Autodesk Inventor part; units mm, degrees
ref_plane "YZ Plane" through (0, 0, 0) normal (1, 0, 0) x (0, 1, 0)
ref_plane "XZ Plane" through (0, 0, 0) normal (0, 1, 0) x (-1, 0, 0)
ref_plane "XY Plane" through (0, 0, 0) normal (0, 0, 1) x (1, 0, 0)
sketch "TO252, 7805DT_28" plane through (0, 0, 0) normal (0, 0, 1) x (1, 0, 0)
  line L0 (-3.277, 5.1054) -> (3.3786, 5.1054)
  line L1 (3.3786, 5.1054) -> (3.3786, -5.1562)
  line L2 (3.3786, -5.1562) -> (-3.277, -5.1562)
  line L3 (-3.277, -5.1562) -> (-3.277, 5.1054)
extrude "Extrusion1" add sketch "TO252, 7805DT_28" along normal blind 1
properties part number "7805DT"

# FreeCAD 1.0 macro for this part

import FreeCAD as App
import Part
import Sketcher
from FreeCAD import Vector
Q = App.Units.Quantity


def add_polygon(sketch, points):
    """Adds a closed chain of lines whose ends are joined by coincident constraints."""
    first, n = sketch.GeometryCount, len(points)
    for a, b in zip(points, points[1:] + points[:1]):
        sketch.addGeometry(Part.LineSegment(App.Vector(*a, 0), App.Vector(*b, 0)), False)
    for i in range(n):
        sketch.addConstraint(Sketcher.Constraint("Coincident", first + i, 2, first + (i + 1) % n, 1))

doc = App.newDocument("Part")
body = doc.addObject("PartDesign::Body", "Body")

# Sketch on XY plane
sketch1 = body.newObject("Sketcher::SketchObject", "Sketch")
sketch1.AttachmentSupport = (doc.getObject("XY_Plane"), [""])
sketch1.MapMode = "FlatFace"
add_polygon(sketch1, [(3, 5), (-3, 5), (-3, -5), (3, -5)])  # lines 0-3
sketch1.addConstraint([
    Sketcher.Constraint("Horizontal", 0),
    Sketcher.Constraint("Vertical", 1),
    Sketcher.Constraint("Horizontal", 2),
    Sketcher.Constraint("Vertical", 3),
    Sketcher.Constraint("DistanceX", 0, 2, 0, 1, Q("6.6556 mm")),
    Sketcher.Constraint("DistanceY", 1, 2, 1, 1, Q("10.2616 mm")),
    Sketcher.Constraint("DistanceX", 0, 2, -1, 1, Q("3.277 mm")),
    Sketcher.Constraint("DistanceY", -1, 1, 0, 2, Q("5.1054 mm")),
])
pad1 = body.newObject("PartDesign::Pad", "Pad")
pad1.Profile = sketch1
pad1.Length = 1

doc.recompute()
